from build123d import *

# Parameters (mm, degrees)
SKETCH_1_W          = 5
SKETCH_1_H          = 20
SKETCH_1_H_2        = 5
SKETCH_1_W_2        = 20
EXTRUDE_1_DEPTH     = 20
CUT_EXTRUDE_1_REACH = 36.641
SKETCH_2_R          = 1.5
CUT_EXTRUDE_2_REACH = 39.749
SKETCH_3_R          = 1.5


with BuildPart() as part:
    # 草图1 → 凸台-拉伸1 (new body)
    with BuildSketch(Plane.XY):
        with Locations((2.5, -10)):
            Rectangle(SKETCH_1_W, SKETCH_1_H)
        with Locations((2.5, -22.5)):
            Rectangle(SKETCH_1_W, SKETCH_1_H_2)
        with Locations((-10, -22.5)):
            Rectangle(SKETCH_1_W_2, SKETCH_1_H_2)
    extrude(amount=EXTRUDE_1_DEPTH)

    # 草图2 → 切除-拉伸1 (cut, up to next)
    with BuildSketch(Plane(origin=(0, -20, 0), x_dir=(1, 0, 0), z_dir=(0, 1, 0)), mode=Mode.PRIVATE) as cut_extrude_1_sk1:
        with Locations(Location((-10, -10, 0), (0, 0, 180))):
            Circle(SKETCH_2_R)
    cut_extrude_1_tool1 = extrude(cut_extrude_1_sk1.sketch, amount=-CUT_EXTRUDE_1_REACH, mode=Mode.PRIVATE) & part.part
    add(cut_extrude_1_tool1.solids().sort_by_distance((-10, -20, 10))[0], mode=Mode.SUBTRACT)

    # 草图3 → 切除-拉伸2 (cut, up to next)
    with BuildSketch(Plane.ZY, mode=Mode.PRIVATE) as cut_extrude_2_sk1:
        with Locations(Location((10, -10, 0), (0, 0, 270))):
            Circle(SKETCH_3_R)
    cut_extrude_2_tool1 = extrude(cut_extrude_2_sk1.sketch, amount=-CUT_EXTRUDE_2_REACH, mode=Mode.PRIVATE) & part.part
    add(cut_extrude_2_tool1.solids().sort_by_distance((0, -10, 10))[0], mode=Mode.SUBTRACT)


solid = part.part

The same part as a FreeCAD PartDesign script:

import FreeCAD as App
import Part
import Sketcher


def add_polygon(sketch, points):
    """Adds a closed chain of lines whose ends are joined by coincident constraints."""
    first, n = sketch.GeometryCount, len(points)
    for a, b in zip(points, points[1:] + points[:1]):
        sketch.addGeometry(Part.LineSegment(App.Vector(*a, 0), App.Vector(*b, 0)), False)
    for i in range(n):
        sketch.addConstraint(Sketcher.Constraint("Coincident", first + i, 2, first + (i + 1) % n, 1))

doc = App.newDocument("Part")
params = doc.addObject("Spreadsheet::Sheet", "Params")
for row, (alias, value) in enumerate([
    ("sketch1_width", "20 mm"),
    ("sketch1_width2", "25 mm"),
    ("pad1_length", "20 mm"),
    ("sketch2_diameter", "3 mm"),
    ("sketch3_diameter", "3 mm"),
], start=1):
    params.set(f"A{row}", alias)
    params.set(f"B{row}", "=" + value)
    params.setAlias(f"B{row}", alias)

body = doc.addObject("PartDesign::Body", "Body")

# Sketch on XY plane
sketch1 = doc.addObject("Sketcher::SketchObject", "Sketch")
body.addObject(sketch1)
sketch1.AttachmentSupport = (doc.XY_Plane, [""])
sketch1.MapMode = "FlatFace"
add_polygon(sketch1, [(0, 0), (0, -20), (-20, -20), (-20, -25), (5, -25), (5, 0)])  # lines 0-5
sketch1.addConstraint([
    Sketcher.Constraint("Vertical", 0),
    Sketcher.Constraint("Horizontal", 1),
    Sketcher.Constraint("Vertical", 2),
    Sketcher.Constraint("Horizontal", 3),
    Sketcher.Constraint("Vertical", 4),
    Sketcher.Constraint("Horizontal", 5),
    Sketcher.Constraint("Coincident", 5, 2, -1, 1),
    Sketcher.Constraint("Equal", 1, 0),
    Sketcher.Constraint("Equal", 5, 2),
    Sketcher.Constraint("DistanceX", 1, 2, 1, 1, 20.0),
    Sketcher.Constraint("DistanceX", 3, 1, 3, 2, 25.0),
])
sketch1.setExpression("Constraints[15]", "Params.sketch1_width")
sketch1.setExpression("Constraints[16]", "Params.sketch1_width2")
pad1 = doc.addObject("PartDesign::Pad", "Pad")
body.addObject(pad1)
pad1.Profile = sketch1
pad1.setExpression("Length", "Params.pad1_length")

# Sketch on XZ plane
sketch2 = doc.addObject("Sketcher::SketchObject", "Sketch001")
body.addObject(sketch2)
sketch2.AttachmentSupport = (doc.XZ_Plane, [""])
sketch2.MapMode = "FlatFace"
sketch2.AttachmentOffset = App.Placement(App.Vector(0, 0, 20), App.Rotation())
sketch2.addGeometry(Part.Circle(App.Vector(-10, 10, 0), App.Vector(0, 0, 1), 1.5), False)
sketch2.addConstraint([
    Sketcher.Constraint("Diameter", 0, 3.0),
    Sketcher.Constraint("DistanceX", 0, 3, -1, 1, 10.0),
    Sketcher.Constraint("DistanceY", -1, 1, 0, 3, 10.0),
])
sketch2.setExpression("Constraints[0]", "Params.sketch2_diameter")
pocket1 = doc.addObject("PartDesign::Pocket", "Pocket")
body.addObject(pocket1)
pocket1.Profile = sketch2
pocket1.Type = "UpToFirst"
pocket1.Reversed = True

# Sketch on YZ plane
sketch3 = doc.addObject("Sketcher::SketchObject", "Sketch002")
body.addObject(sketch3)
sketch3.AttachmentSupport = (doc.YZ_Plane, [""])
sketch3.MapMode = "FlatFace"
sketch3.addGeometry(Part.Circle(App.Vector(-10, 10, 0), App.Vector(0, 0, 1), 1.5), False)
sketch3.addConstraint([
    Sketcher.Constraint("Diameter", 0, 3.0),
    Sketcher.Constraint("DistanceX", 0, 3, -1, 1, 10.0),
    Sketcher.Constraint("DistanceY", -1, 1, 0, 3, 10.0),
])
sketch3.setExpression("Constraints[0]", "Params.sketch3_diameter")
pocket2 = doc.addObject("PartDesign::Pocket", "Pocket001")
body.addObject(pocket2)
pocket2.Profile = sketch3
pocket2.Type = "UpToFirst"
pocket2.Reversed = True

doc.recompute()
